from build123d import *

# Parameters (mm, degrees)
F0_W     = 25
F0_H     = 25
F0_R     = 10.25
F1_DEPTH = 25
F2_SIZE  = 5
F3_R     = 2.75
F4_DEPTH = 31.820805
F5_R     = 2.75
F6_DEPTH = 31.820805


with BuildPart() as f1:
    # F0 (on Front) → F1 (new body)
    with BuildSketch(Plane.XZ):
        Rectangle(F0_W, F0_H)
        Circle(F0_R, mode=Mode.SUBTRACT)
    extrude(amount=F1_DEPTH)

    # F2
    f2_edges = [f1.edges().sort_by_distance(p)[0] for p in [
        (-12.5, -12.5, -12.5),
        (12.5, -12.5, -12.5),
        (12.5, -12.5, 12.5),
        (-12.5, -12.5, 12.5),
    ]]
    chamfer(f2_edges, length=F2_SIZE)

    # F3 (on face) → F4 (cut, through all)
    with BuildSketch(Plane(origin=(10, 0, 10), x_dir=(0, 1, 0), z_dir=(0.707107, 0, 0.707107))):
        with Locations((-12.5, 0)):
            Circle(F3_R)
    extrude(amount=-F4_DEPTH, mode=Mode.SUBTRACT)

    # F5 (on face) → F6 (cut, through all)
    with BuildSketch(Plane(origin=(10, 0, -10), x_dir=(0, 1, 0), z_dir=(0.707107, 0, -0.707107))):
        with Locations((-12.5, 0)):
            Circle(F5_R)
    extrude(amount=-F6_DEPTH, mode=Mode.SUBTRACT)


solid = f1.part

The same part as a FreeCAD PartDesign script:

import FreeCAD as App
import Part
import Sketcher
from FreeCAD import Vector
Q = App.Units.Quantity


def edges_at(feature, points):
    """Names of the edges that pass closest to the given points."""
    edges = feature.Shape.Edges
    near = lambda p: min(range(len(edges)), key=lambda i: edges[i].distToShape(Part.Vertex(*p))[0])
    return sorted({f"Edge{near(p) + 1}" for p in points})

doc = App.newDocument("Part")
params = doc.addObject("Spreadsheet::Sheet", "Params")
for row, (alias, value) in enumerate([
    ("sketch1_diameter", "20.5 mm"),
    ("sketch1_width", "25 mm"),
    ("pad1_length", "25 mm"),
    ("chamfer_size", "5 mm"),
    ("sketch2_diameter", "5.5 mm"),
    ("sketch3_diameter", "5.5 mm"),
], start=1):
    params.set(f"A{row}", alias)
    params.set(f"B{row}", "=" + value)
    params.setAlias(f"B{row}", alias)

body = doc.addObject("PartDesign::Body", "Body")

# Sketch on XZ plane
sketch1 = body.newObject("Sketcher::SketchObject", "Sketch")
sketch1.AttachmentSupport = (doc.getObject("XZ_Plane"), [""])
sketch1.MapMode = "FlatFace"
sketch1.addGeometry(Part.LineSegment(Vector(-12, 12, 0), Vector(-12, -12, 0)), False)
sketch1.addGeometry(Part.LineSegment(Vector(-12, -12, 0), Vector(12, -12, 0)), False)
sketch1.addGeometry(Part.LineSegment(Vector(12, -12, 0), Vector(12, 12, 0)), False)
sketch1.addGeometry(Part.LineSegment(Vector(12, 12, 0), Vector(-12, 12, 0)), False)
sketch1.addGeometry(Part.Circle(Vector(0, 0, 0), Vector(0, 0, 1), 10), False)
sketch1.addConstraint(Sketcher.Constraint("Coincident", 0, 2, 1, 1))
sketch1.addConstraint(Sketcher.Constraint("Coincident", 1, 2, 2, 1))
sketch1.addConstraint(Sketcher.Constraint("Coincident", 2, 2, 3, 1))
sketch1.addConstraint(Sketcher.Constraint("Coincident", 3, 2, 0, 1))
sketch1.addConstraint(Sketcher.Constraint("Vertical", 0))
sketch1.addConstraint(Sketcher.Constraint("Horizontal", 1))
sketch1.addConstraint(Sketcher.Constraint("Vertical", 2))
sketch1.addConstraint(Sketcher.Constraint("Horizontal", 3))
sketch1.addConstraint(Sketcher.Constraint("Coincident", 4, 3, -1, 1))
sketch1.addConstraint(Sketcher.Constraint("Symmetric", 0, 2, 2, 2, -1, 1))
sketch1.addConstraint(Sketcher.Constraint("Equal", 3, 0))
sketch1.addConstraint(Sketcher.Constraint("Diameter", 4, Q("20.5 mm")))
sketch1.addConstraint(Sketcher.Constraint("DistanceX", 1, 1, 1, 2, Q("25 mm")))
sketch1.setExpression("Constraints[11]", "Params.sketch1_diameter")
sketch1.setExpression("Constraints[12]", "Params.sketch1_width")
pad1 = body.newObject("PartDesign::Pad", "Pad")
pad1.Profile = sketch1
pad1.setExpression("Length", "Params.pad1_length")
doc.recompute()

chamfer = body.newObject("PartDesign::Chamfer", "Chamfer")
chamfer.Base = (pad1, edges_at(pad1, [
    (-12.5, -12.5, -12.5),
    (12.5, -12.5, -12.5),
    (12.5, -12.5, 12.5),
    (-12.5, -12.5, 12.5),
]))
chamfer.setExpression("Size", "Params.chamfer_size")

# Sketch on an angled plane
sketch2 = body.newObject("Sketcher::SketchObject", "Sketch001")
sketch2.Placement = App.Placement(Vector(10, 0, 10), App.Rotation(Vector(0, 1, 0), Vector(-0.707106781, 0, 0.707106781), Vector(0.707106781, 0, 0.707106781), "ZXY"))
sketch2.addGeometry(Part.Circle(Vector(-12.5, 0, 0), Vector(0, 0, 1), 2.8), False)
sketch2.addConstraint(Sketcher.Constraint("PointOnObject", 0, 3, -1))
sketch2.addConstraint(Sketcher.Constraint("Diameter", 0, Q("5.5 mm")))
sketch2.addConstraint(Sketcher.Constraint("DistanceX", 0, 3, -1, 1, Q("12.5 mm")))
sketch2.setExpression("Constraints[1]", "Params.sketch2_diameter")
pocket1 = body.newObject("PartDesign::Pocket", "Pocket")
pocket1.Profile = sketch2
pocket1.Type = "ThroughAll"

# Sketch on an angled plane
sketch3 = body.newObject("Sketcher::SketchObject", "Sketch002")
sketch3.Placement = App.Placement(Vector(10, 0, -10), App.Rotation(Vector(0, 1, 0), Vector(0.707106781, 0, 0.707106781), Vector(0.707106781, 0, -0.707106781), "ZXY"))
sketch3.addGeometry(Part.Circle(Vector(-12.5, 0, 0), Vector(0, 0, 1), 2.8), False)
sketch3.addConstraint(Sketcher.Constraint("PointOnObject", 0, 3, -1))
sketch3.addConstraint(Sketcher.Constraint("Diameter", 0, Q("5.5 mm")))
sketch3.addConstraint(Sketcher.Constraint("DistanceX", 0, 3, -1, 1, Q("12.5 mm")))
sketch3.setExpression("Constraints[1]", "Params.sketch3_diameter")
pocket2 = body.newObject("PartDesign::Pocket", "Pocket001")
pocket2.Profile = sketch3
pocket2.Type = "ThroughAll"

doc.recompute()
